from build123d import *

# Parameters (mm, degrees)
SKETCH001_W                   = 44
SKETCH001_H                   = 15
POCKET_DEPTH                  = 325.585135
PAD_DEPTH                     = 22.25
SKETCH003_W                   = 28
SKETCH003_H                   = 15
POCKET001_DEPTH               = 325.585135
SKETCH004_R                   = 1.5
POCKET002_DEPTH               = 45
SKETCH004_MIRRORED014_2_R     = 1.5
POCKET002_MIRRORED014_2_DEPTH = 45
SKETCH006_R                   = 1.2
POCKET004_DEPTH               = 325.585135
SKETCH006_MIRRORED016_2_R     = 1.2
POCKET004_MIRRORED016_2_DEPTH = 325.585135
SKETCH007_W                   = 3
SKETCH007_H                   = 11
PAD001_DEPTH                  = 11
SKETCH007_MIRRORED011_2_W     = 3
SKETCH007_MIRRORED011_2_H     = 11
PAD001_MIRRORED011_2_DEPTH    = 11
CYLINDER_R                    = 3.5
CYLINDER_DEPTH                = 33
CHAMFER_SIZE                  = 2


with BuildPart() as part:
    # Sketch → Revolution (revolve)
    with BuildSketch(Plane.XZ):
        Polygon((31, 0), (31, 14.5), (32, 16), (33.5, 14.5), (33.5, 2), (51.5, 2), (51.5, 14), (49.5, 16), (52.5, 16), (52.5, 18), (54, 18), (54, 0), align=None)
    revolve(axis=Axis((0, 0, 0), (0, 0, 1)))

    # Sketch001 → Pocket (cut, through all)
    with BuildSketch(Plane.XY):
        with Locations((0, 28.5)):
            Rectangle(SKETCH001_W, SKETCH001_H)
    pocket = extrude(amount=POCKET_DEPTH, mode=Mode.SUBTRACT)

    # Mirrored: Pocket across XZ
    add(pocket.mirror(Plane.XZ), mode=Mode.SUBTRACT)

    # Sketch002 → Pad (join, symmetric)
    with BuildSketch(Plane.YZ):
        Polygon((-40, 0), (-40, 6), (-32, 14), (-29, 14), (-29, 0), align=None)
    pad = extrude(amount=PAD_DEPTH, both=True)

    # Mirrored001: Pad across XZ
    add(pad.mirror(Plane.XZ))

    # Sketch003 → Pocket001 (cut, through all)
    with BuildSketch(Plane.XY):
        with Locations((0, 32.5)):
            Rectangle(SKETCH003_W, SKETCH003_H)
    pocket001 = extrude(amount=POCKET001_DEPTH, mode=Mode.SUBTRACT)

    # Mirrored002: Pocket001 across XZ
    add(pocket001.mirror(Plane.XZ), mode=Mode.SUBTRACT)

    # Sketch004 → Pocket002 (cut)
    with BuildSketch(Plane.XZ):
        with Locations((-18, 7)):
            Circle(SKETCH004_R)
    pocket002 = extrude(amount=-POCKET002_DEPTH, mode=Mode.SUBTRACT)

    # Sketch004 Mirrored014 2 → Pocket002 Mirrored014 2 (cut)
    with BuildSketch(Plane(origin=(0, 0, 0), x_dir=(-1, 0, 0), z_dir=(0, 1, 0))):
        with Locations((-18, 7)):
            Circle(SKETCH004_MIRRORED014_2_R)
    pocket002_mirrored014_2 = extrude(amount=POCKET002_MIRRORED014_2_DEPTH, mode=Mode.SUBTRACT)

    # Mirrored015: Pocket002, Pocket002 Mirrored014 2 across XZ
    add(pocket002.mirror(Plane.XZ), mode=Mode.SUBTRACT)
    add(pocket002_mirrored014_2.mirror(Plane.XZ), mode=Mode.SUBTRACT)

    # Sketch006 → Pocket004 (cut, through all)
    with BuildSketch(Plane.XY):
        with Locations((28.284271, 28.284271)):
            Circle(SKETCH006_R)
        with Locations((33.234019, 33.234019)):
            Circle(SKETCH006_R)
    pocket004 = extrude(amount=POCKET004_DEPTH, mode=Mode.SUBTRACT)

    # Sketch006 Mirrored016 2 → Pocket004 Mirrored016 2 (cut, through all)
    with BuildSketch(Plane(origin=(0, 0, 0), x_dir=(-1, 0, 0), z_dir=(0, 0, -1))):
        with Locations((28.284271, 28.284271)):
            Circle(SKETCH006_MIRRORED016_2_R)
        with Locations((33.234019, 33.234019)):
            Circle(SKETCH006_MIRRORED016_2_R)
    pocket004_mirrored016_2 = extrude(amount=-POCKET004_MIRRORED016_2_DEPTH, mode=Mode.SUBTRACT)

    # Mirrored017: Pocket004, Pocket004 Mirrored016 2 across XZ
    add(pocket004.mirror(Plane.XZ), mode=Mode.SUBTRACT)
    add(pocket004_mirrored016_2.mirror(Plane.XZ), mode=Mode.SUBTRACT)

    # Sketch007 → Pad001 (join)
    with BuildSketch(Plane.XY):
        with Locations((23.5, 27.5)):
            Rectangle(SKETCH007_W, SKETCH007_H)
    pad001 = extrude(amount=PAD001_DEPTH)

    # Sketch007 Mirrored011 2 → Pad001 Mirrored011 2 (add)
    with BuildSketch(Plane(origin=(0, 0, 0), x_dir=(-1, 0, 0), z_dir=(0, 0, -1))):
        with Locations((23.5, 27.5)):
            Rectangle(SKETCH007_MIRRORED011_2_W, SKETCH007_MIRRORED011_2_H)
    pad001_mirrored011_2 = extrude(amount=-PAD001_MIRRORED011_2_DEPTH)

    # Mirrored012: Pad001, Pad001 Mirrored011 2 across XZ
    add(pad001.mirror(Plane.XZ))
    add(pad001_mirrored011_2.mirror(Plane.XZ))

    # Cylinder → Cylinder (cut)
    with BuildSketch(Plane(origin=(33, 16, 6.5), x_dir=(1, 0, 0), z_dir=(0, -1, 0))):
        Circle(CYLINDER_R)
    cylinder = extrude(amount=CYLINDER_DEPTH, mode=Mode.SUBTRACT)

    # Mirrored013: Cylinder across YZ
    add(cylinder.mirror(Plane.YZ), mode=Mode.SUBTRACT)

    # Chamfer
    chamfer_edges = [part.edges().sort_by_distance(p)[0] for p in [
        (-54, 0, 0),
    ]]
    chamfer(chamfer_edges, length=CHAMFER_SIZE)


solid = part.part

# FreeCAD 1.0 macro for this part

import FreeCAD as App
import Part
import Sketcher

V = App.Vector
Q = App.Units.Quantity


def edges_at(feature, points):
    """Names of the edges that pass closest to the given points."""
    edges = feature.Shape.Edges
    near = lambda p: min(range(len(edges)), key=lambda i: edges[i].distToShape(Part.Vertex(*p))[0])
    return sorted({f"Edge{near(p) + 1}" for p in points})

doc = App.newDocument("Part")
body = doc.addObject("PartDesign::Body", "Body")

sketch1 = body.newObject("Sketcher::SketchObject", "Sketch")
sketch1.AttachmentSupport = (doc.getObject("XZ_Plane"), [""])
sketch1.MapMode = "FlatFace"
sketch1.addGeometry([
    Part.LineSegment(V(31, 14.5, 0), V(31, 0, 0)),
    Part.LineSegment(V(31, 0, 0), V(54, 0, 0)),
    Part.LineSegment(V(54, 0, 0), V(54, 18, 0)),
    Part.LineSegment(V(54, 18, 0), V(52.5, 18, 0)),
    Part.LineSegment(V(52.5, 18, 0), V(52.5, 16, 0)),
    Part.LineSegment(V(52.5, 16, 0), V(49.5, 16, 0)),
    Part.LineSegment(V(49.5, 16, 0), V(51.5, 14, 0)),
    Part.LineSegment(V(51.5, 14, 0), V(51.5, 2, 0)),
    Part.LineSegment(V(51.5, 2, 0), V(33.5, 2, 0)),
    Part.LineSegment(V(33.5, 2, 0), V(33.5, 14.5, 0)),
    Part.LineSegment(V(33.5, 14.5, 0), V(32, 16, 0)),
    Part.LineSegment(V(32, 16, 0), V(31, 14.5, 0)),
], False)
sketch1.addConstraint([
    Sketcher.Constraint("Coincident", 0, 2, 1, 1),
    Sketcher.Constraint("Coincident", 1, 2, 2, 1),
    Sketcher.Constraint("Coincident", 2, 2, 3, 1),
    Sketcher.Constraint("Coincident", 3, 2, 4, 1),
    Sketcher.Constraint("Coincident", 4, 2, 5, 1),
    Sketcher.Constraint("Coincident", 5, 2, 6, 1),
    Sketcher.Constraint("Coincident", 6, 2, 7, 1),
    Sketcher.Constraint("Coincident", 7, 2, 8, 1),
    Sketcher.Constraint("Coincident", 8, 2, 9, 1),
    Sketcher.Constraint("Coincident", 9, 2, 10, 1),
    Sketcher.Constraint("Coincident", 10, 2, 11, 1),
    Sketcher.Constraint("Coincident", 11, 2, 0, 1),
    Sketcher.Constraint("Vertical", 0),
    Sketcher.Constraint("Horizontal", 1),
    Sketcher.Constraint("Vertical", 2),
    Sketcher.Constraint("Horizontal", 3),
    Sketcher.Constraint("Vertical", 4),
    Sketcher.Constraint("Horizontal", 5),
    Sketcher.Constraint("Vertical", 7),
    Sketcher.Constraint("Horizontal", 8),
    Sketcher.Constraint("Vertical", 9),
    Sketcher.Constraint("PointOnObject", 0, 2, -1),
    Sketcher.Constraint("Parallel", 6, 10),
    Sketcher.Constraint("Horizontal", 5, 2, 10, 2),
    Sketcher.Constraint("Horizontal", 9, 2, 11, 2),
    Sketcher.Constraint("Equal", 8, 2),
    Sketcher.Constraint("DistanceX", 1, 1, 1, 2, Q("23 mm")),
    Sketcher.Constraint("DistanceX", 5, 2, 5, 1, Q("3 mm")),
    Sketcher.Constraint("DistanceX", 8, 2, 8, 1, Q("18 mm")),
    Sketcher.Constraint("DistanceY", 4, 2, 4, 1, Q("2 mm")),
    Sketcher.Constraint("DistanceY", 7, 2, 7, 1, Q("12 mm")),
    Sketcher.Constraint("Angle", 6, Q("-45 deg")),
    Sketcher.Constraint("DistanceX", 3, 2, 3, 1, Q("1.5 mm")),
    Sketcher.Constraint("DistanceY", 0, 2, 0, 1, Q("14.5 mm")),
    Sketcher.Constraint("DistanceY", 9, 1, 9, 2, Q("12.5 mm")),
    Sketcher.Constraint("DistanceX", -1, 1, 0, 2, Q("31 mm")),
])
revolution = body.newObject("PartDesign::Revolution", "Revolution")
revolution.Profile = sketch1
revolution.ReferenceAxis = (sketch1, ["V_Axis"])
revolution.Angle = 360

sketch2 = body.newObject("Sketcher::SketchObject", "Sketch001")
sketch2.AttachmentSupport = (doc.getObject("XY_Plane"), [""])
sketch2.MapMode = "FlatFace"
sketch2.addGeometry([
    Part.LineSegment(V(-22, 36, 0), V(-22, 21, 0)),
    Part.LineSegment(V(-22, 21, 0), V(22, 21, 0)),
    Part.LineSegment(V(22, 21, 0), V(22, 36, 0)),
    Part.LineSegment(V(22, 36, 0), V(-22, 36, 0)),
], False)
sketch2.addConstraint([
    Sketcher.Constraint("Coincident", 0, 2, 1, 1),
    Sketcher.Constraint("Coincident", 1, 2, 2, 1),
    Sketcher.Constraint("Coincident", 2, 2, 3, 1),
    Sketcher.Constraint("Coincident", 3, 2, 0, 1),
    Sketcher.Constraint("Vertical", 0),
    Sketcher.Constraint("Horizontal", 1),
    Sketcher.Constraint("Vertical", 2),
    Sketcher.Constraint("Horizontal", 3),
    Sketcher.Constraint("DistanceX", 1, 1, 1, 2, Q("44 mm")),
    Sketcher.Constraint("DistanceY", 0, 2, 0, 1, Q("15 mm")),
    Sketcher.Constraint("DistanceX", 0, 2, -1, 1, Q("22 mm")),
    Sketcher.Constraint("DistanceY", -1, 1, 0, 2, Q("21 mm")),
])
pocket1 = body.newObject("PartDesign::Pocket", "Pocket")
pocket1.Profile = sketch2
pocket1.Type = "ThroughAll"
pocket1.Reversed = True
doc.recompute()

mirrored = body.newObject("PartDesign::Mirrored", "Mirrored")
mirrored.Originals = [pocket1]
mirrored.MirrorPlane = (doc.getObject("XZ_Plane"), [""])
body.Tip = mirrored

sketch3 = body.newObject("Sketcher::SketchObject", "Sketch002")
sketch3.AttachmentSupport = (doc.getObject("YZ_Plane"), [""])
sketch3.MapMode = "FlatFace"
sketch3.addGeometry([
    Part.LineSegment(V(-40, 6, 0), V(-40, 0, 0)),
    Part.LineSegment(V(-40, 0, 0), V(-29, 0, 0)),
    Part.LineSegment(V(-29, 0, 0), V(-29, 14, 0)),
    Part.LineSegment(V(-29, 14, 0), V(-32, 14, 0)),
    Part.LineSegment(V(-32, 14, 0), V(-40, 6, 0)),
], False)
sketch3.addConstraint([
    Sketcher.Constraint("Coincident", 0, 2, 1, 1),
    Sketcher.Constraint("Coincident", 1, 2, 2, 1),
    Sketcher.Constraint("Coincident", 2, 2, 3, 1),
    Sketcher.Constraint("Coincident", 3, 2, 4, 1),
    Sketcher.Constraint("Coincident", 4, 2, 0, 1),
    Sketcher.Constraint("Vertical", 0),
    Sketcher.Constraint("Horizontal", 1),
    Sketcher.Constraint("Vertical", 2),
    Sketcher.Constraint("Horizontal", 3),
    Sketcher.Constraint("PointOnObject", 0, 2, -1),
    Sketcher.Constraint("DistanceX", 1, 1, 1, 2, Q("11 mm")),
    Sketcher.Constraint("DistanceX", 3, 2, 3, 1, Q("3 mm")),
    Sketcher.Constraint("DistanceY", 0, 2, 0, 1, Q("6 mm")),
    Sketcher.Constraint("DistanceY", 2, 1, 2, 2, Q("14 mm")),
    Sketcher.Constraint("DistanceX", 0, 2, -1, 1, Q("40 mm")),
])
pad1 = body.newObject("PartDesign::Pad", "Pad")
pad1.Profile = sketch3
pad1.Length = 44.5
pad1.Midplane = True
doc.recompute()

mirrored2 = body.newObject("PartDesign::Mirrored", "Mirrored001")
mirrored2.Originals = [pad1]
mirrored2.MirrorPlane = (doc.getObject("XZ_Plane"), [""])
body.Tip = mirrored2

sketch4 = body.newObject("Sketcher::SketchObject", "Sketch003")
sketch4.AttachmentSupport = (doc.getObject("XY_Plane"), [""])
sketch4.MapMode = "FlatFace"
sketch4.addGeometry([
    Part.LineSegment(V(-14, 40, 0), V(-14, 25, 0)),
    Part.LineSegment(V(-14, 25, 0), V(14, 25, 0)),
    Part.LineSegment(V(14, 25, 0), V(14, 40, 0)),
    Part.LineSegment(V(14, 40, 0), V(-14, 40, 0)),
], False)
sketch4.addConstraint([
    Sketcher.Constraint("Coincident", 0, 2, 1, 1),
    Sketcher.Constraint("Coincident", 1, 2, 2, 1),
    Sketcher.Constraint("Coincident", 2, 2, 3, 1),
    Sketcher.Constraint("Coincident", 3, 2, 0, 1),
    Sketcher.Constraint("Vertical", 0),
    Sketcher.Constraint("Horizontal", 1),
    Sketcher.Constraint("Vertical", 2),
    Sketcher.Constraint("Horizontal", 3),
    Sketcher.Constraint("DistanceX", 1, 1, 1, 2, Q("28 mm")),
    Sketcher.Constraint("DistanceY", 0, 2, 0, 1, Q("15 mm")),
    Sketcher.Constraint("DistanceX", 0, 2, -1, 1, Q("14 mm")),
    Sketcher.Constraint("DistanceY", -1, 1, 0, 2, Q("25 mm")),
])
pocket2 = body.newObject("PartDesign::Pocket", "Pocket001")
pocket2.Profile = sketch4
pocket2.Type = "ThroughAll"
pocket2.Reversed = True
doc.recompute()

mirrored3 = body.newObject("PartDesign::Mirrored", "Mirrored002")
mirrored3.Originals = [pocket2]
mirrored3.MirrorPlane = (doc.getObject("XZ_Plane"), [""])
body.Tip = mirrored3

sketch5 = body.newObject("Sketcher::SketchObject", "Sketch004")
sketch5.AttachmentSupport = (doc.getObject("XZ_Plane"), [""])
sketch5.MapMode = "FlatFace"
sketch5.addGeometry(Part.Circle(V(-18, 7, 0), V(0, 0, 1), 1.5), False)
sketch5.addConstraint([
    Sketcher.Constraint("Diameter", 0, Q("3 mm")),
    Sketcher.Constraint("DistanceX", 0, 3, -1, 1, Q("18 mm")),
    Sketcher.Constraint("DistanceY", -1, 1, 0, 3, Q("7 mm")),
])
pocket3 = body.newObject("PartDesign::Pocket", "Pocket002")
pocket3.Profile = sketch5
pocket3.Length = 45

sketch6 = body.newObject("Sketcher::SketchObject", "Sketch005")
sketch6.AttachmentSupport = (doc.getObject("XZ_Plane"), [""])
sketch6.MapMode = "FlatFace"
sketch6.addGeometry(Part.Circle(V(18, 7, 0), V(0, 0, 1), 1.5), False)
sketch6.addConstraint([
    Sketcher.Constraint("Diameter", 0, Q("3 mm")),
    Sketcher.Constraint("DistanceX", -1, 1, 0, 3, Q("18 mm")),
    Sketcher.Constraint("DistanceY", -1, 1, 0, 3, Q("7 mm")),
])
pocket4 = body.newObject("PartDesign::Pocket", "Pocket003")
pocket4.Profile = sketch6
pocket4.Length = 45
doc.recompute()

mirrored4 = body.newObject("PartDesign::Mirrored", "Mirrored003")
mirrored4.Originals = [pocket3, pocket4]
mirrored4.MirrorPlane = (doc.getObject("XZ_Plane"), [""])
body.Tip = mirrored4

sketch7 = body.newObject("Sketcher::SketchObject", "Sketch006")
sketch7.AttachmentSupport = (doc.getObject("XY_Plane"), [""])
sketch7.MapMode = "FlatFace"
sketch7.addGeometry([
    Part.Circle(V(28.284271, 28.284271, 0), V(0, 0, 1), 1.2),
    Part.Circle(V(33.234019, 33.234019, 0), V(0, 0, 1), 1.2),
], False)
sketch7.addConstraint([
    Sketcher.Constraint("Equal", 0, 1),
    Sketcher.Constraint("Diameter", 0, Q("2.4 mm")),
    Sketcher.Constraint("DistanceX", -1, 1, 0, 3, Q("28.284271 mm")),
    Sketcher.Constraint("DistanceY", -1, 1, 0, 3, Q("28.284271 mm")),
    Sketcher.Constraint("DistanceX", -1, 1, 1, 3, Q("33.234019 mm")),
    Sketcher.Constraint("DistanceY", -1, 1, 1, 3, Q("33.234019 mm")),
])
pocket5 = body.newObject("PartDesign::Pocket", "Pocket004")
pocket5.Profile = sketch7
pocket5.Type = "ThroughAll"
pocket5.Reversed = True

sketch8 = body.newObject("Sketcher::SketchObject", "Sketch007")
sketch8.AttachmentSupport = (doc.getObject("XY_Plane"), [""])
sketch8.MapMode = "FlatFace"
sketch8.addGeometry([
    Part.Circle(V(-28.284271, 28.284271, 0), V(0, 0, 1), 1.2),
    Part.Circle(V(-33.234019, 33.234019, 0), V(0, 0, 1), 1.2),
], False)
sketch8.addConstraint([
    Sketcher.Constraint("Equal", 0, 1),
    Sketcher.Constraint("Diameter", 0, Q("2.4 mm")),
    Sketcher.Constraint("DistanceX", 0, 3, -1, 1, Q("28.284271 mm")),
    Sketcher.Constraint("DistanceY", -1, 1, 0, 3, Q("28.284271 mm")),
    Sketcher.Constraint("DistanceX", 1, 3, -1, 1, Q("33.234019 mm")),
    Sketcher.Constraint("DistanceY", -1, 1, 1, 3, Q("33.234019 mm")),
])
pocket6 = body.newObject("PartDesign::Pocket", "Pocket005")
pocket6.Profile = sketch8
pocket6.Type = "ThroughAll"
pocket6.Reversed = True
doc.recompute()

mirrored5 = body.newObject("PartDesign::Mirrored", "Mirrored004")
mirrored5.Originals = [pocket5, pocket6]
mirrored5.MirrorPlane = (doc.getObject("XZ_Plane"), [""])
body.Tip = mirrored5

sketch9 = body.newObject("Sketcher::SketchObject", "Sketch008")
sketch9.AttachmentSupport = (doc.getObject("XY_Plane"), [""])
sketch9.MapMode = "FlatFace"
sketch9.addGeometry([
    Part.LineSegment(V(22, 33, 0), V(22, 22, 0)),
    Part.LineSegment(V(22, 22, 0), V(25, 22, 0)),
    Part.LineSegment(V(25, 22, 0), V(25, 33, 0)),
    Part.LineSegment(V(25, 33, 0), V(22, 33, 0)),
], False)
sketch9.addConstraint([
    Sketcher.Constraint("Coincident", 0, 2, 1, 1),
    Sketcher.Constraint("Coincident", 1, 2, 2, 1),
    Sketcher.Constraint("Coincident", 2, 2, 3, 1),
    Sketcher.Constraint("Coincident", 3, 2, 0, 1),
    Sketcher.Constraint("Vertical", 0),
    Sketcher.Constraint("Horizontal", 1),
    Sketcher.Constraint("Vertical", 2),
    Sketcher.Constraint("Horizontal", 3),
    Sketcher.Constraint("DistanceX", 1, 1, 1, 2, Q("3 mm")),
    Sketcher.Constraint("DistanceY", 0, 2, 0, 1, Q("11 mm")),
    Sketcher.Constraint("DistanceX", -1, 1, 0, 2, Q("22 mm")),
    Sketcher.Constraint("DistanceY", -1, 1, 0, 2, Q("22 mm")),
])
pad2 = body.newObject("PartDesign::Pad", "Pad001")
pad2.Profile = sketch9
pad2.Length = 11

sketch10 = body.newObject("Sketcher::SketchObject", "Sketch009")
sketch10.AttachmentSupport = (doc.getObject("XY_Plane"), [""])
sketch10.MapMode = "FlatFace"
sketch10.addGeometry([
    Part.LineSegment(V(-22, 33, 0), V(-22, 22, 0)),
    Part.LineSegment(V(-22, 22, 0), V(-25, 22, 0)),
    Part.LineSegment(V(-25, 22, 0), V(-25, 33, 0)),
    Part.LineSegment(V(-25, 33, 0), V(-22, 33, 0)),
], False)
sketch10.addConstraint([
    Sketcher.Constraint("Coincident", 0, 2, 1, 1),
    Sketcher.Constraint("Coincident", 1, 2, 2, 1),
    Sketcher.Constraint("Coincident", 2, 2, 3, 1),
    Sketcher.Constraint("Coincident", 3, 2, 0, 1),
    Sketcher.Constraint("Vertical", 0),
    Sketcher.Constraint("Horizontal", 1),
    Sketcher.Constraint("Vertical", 2),
    Sketcher.Constraint("Horizontal", 3),
    Sketcher.Constraint("DistanceX", 1, 2, 1, 1, Q("3 mm")),
    Sketcher.Constraint("DistanceY", 0, 2, 0, 1, Q("11 mm")),
    Sketcher.Constraint("DistanceX", 0, 2, -1, 1, Q("22 mm")),
    Sketcher.Constraint("DistanceY", -1, 1, 0, 2, Q("22 mm")),
])
pad3 = body.newObject("PartDesign::Pad", "Pad002")
pad3.Profile = sketch10
pad3.Length = 11
doc.recompute()

mirrored6 = body.newObject("PartDesign::Mirrored", "Mirrored005")
mirrored6.Originals = [pad2, pad3]
mirrored6.MirrorPlane = (doc.getObject("XZ_Plane"), [""])
body.Tip = mirrored6

sketch11 = body.newObject("Sketcher::SketchObject", "Sketch010")
sketch11.AttachmentSupport = (doc.getObject("XZ_Plane"), [""])
sketch11.MapMode = "FlatFace"
sketch11.AttachmentOffset = App.Placement(V(0, 0, -16), App.Rotation())
sketch11.addGeometry(Part.Circle(V(33, 6.5, 0), V(0, 0, 1), 3.5), False)
sketch11.addConstraint([
    Sketcher.Constraint("Diameter", 0, Q("7 mm")),
    Sketcher.Constraint("DistanceX", -1, 1, 0, 3, Q("33 mm")),
    Sketcher.Constraint("DistanceY", -1, 1, 0, 3, Q("6.5 mm")),
])
pocket7 = body.newObject("PartDesign::Pocket", "Pocket006")
pocket7.Profile = sketch11
pocket7.Length = 33
pocket7.Reversed = True
doc.recompute()

mirrored7 = body.newObject("PartDesign::Mirrored", "Mirrored006")
mirrored7.Originals = [pocket7]
mirrored7.MirrorPlane = (doc.getObject("YZ_Plane"), [""])
body.Tip = mirrored7
doc.recompute()

chamfer = body.newObject("PartDesign::Chamfer", "Chamfer")
chamfer.Base = (mirrored7, edges_at(mirrored7, [(-54, 0, 0)]))
chamfer.Size = 2

doc.recompute()
